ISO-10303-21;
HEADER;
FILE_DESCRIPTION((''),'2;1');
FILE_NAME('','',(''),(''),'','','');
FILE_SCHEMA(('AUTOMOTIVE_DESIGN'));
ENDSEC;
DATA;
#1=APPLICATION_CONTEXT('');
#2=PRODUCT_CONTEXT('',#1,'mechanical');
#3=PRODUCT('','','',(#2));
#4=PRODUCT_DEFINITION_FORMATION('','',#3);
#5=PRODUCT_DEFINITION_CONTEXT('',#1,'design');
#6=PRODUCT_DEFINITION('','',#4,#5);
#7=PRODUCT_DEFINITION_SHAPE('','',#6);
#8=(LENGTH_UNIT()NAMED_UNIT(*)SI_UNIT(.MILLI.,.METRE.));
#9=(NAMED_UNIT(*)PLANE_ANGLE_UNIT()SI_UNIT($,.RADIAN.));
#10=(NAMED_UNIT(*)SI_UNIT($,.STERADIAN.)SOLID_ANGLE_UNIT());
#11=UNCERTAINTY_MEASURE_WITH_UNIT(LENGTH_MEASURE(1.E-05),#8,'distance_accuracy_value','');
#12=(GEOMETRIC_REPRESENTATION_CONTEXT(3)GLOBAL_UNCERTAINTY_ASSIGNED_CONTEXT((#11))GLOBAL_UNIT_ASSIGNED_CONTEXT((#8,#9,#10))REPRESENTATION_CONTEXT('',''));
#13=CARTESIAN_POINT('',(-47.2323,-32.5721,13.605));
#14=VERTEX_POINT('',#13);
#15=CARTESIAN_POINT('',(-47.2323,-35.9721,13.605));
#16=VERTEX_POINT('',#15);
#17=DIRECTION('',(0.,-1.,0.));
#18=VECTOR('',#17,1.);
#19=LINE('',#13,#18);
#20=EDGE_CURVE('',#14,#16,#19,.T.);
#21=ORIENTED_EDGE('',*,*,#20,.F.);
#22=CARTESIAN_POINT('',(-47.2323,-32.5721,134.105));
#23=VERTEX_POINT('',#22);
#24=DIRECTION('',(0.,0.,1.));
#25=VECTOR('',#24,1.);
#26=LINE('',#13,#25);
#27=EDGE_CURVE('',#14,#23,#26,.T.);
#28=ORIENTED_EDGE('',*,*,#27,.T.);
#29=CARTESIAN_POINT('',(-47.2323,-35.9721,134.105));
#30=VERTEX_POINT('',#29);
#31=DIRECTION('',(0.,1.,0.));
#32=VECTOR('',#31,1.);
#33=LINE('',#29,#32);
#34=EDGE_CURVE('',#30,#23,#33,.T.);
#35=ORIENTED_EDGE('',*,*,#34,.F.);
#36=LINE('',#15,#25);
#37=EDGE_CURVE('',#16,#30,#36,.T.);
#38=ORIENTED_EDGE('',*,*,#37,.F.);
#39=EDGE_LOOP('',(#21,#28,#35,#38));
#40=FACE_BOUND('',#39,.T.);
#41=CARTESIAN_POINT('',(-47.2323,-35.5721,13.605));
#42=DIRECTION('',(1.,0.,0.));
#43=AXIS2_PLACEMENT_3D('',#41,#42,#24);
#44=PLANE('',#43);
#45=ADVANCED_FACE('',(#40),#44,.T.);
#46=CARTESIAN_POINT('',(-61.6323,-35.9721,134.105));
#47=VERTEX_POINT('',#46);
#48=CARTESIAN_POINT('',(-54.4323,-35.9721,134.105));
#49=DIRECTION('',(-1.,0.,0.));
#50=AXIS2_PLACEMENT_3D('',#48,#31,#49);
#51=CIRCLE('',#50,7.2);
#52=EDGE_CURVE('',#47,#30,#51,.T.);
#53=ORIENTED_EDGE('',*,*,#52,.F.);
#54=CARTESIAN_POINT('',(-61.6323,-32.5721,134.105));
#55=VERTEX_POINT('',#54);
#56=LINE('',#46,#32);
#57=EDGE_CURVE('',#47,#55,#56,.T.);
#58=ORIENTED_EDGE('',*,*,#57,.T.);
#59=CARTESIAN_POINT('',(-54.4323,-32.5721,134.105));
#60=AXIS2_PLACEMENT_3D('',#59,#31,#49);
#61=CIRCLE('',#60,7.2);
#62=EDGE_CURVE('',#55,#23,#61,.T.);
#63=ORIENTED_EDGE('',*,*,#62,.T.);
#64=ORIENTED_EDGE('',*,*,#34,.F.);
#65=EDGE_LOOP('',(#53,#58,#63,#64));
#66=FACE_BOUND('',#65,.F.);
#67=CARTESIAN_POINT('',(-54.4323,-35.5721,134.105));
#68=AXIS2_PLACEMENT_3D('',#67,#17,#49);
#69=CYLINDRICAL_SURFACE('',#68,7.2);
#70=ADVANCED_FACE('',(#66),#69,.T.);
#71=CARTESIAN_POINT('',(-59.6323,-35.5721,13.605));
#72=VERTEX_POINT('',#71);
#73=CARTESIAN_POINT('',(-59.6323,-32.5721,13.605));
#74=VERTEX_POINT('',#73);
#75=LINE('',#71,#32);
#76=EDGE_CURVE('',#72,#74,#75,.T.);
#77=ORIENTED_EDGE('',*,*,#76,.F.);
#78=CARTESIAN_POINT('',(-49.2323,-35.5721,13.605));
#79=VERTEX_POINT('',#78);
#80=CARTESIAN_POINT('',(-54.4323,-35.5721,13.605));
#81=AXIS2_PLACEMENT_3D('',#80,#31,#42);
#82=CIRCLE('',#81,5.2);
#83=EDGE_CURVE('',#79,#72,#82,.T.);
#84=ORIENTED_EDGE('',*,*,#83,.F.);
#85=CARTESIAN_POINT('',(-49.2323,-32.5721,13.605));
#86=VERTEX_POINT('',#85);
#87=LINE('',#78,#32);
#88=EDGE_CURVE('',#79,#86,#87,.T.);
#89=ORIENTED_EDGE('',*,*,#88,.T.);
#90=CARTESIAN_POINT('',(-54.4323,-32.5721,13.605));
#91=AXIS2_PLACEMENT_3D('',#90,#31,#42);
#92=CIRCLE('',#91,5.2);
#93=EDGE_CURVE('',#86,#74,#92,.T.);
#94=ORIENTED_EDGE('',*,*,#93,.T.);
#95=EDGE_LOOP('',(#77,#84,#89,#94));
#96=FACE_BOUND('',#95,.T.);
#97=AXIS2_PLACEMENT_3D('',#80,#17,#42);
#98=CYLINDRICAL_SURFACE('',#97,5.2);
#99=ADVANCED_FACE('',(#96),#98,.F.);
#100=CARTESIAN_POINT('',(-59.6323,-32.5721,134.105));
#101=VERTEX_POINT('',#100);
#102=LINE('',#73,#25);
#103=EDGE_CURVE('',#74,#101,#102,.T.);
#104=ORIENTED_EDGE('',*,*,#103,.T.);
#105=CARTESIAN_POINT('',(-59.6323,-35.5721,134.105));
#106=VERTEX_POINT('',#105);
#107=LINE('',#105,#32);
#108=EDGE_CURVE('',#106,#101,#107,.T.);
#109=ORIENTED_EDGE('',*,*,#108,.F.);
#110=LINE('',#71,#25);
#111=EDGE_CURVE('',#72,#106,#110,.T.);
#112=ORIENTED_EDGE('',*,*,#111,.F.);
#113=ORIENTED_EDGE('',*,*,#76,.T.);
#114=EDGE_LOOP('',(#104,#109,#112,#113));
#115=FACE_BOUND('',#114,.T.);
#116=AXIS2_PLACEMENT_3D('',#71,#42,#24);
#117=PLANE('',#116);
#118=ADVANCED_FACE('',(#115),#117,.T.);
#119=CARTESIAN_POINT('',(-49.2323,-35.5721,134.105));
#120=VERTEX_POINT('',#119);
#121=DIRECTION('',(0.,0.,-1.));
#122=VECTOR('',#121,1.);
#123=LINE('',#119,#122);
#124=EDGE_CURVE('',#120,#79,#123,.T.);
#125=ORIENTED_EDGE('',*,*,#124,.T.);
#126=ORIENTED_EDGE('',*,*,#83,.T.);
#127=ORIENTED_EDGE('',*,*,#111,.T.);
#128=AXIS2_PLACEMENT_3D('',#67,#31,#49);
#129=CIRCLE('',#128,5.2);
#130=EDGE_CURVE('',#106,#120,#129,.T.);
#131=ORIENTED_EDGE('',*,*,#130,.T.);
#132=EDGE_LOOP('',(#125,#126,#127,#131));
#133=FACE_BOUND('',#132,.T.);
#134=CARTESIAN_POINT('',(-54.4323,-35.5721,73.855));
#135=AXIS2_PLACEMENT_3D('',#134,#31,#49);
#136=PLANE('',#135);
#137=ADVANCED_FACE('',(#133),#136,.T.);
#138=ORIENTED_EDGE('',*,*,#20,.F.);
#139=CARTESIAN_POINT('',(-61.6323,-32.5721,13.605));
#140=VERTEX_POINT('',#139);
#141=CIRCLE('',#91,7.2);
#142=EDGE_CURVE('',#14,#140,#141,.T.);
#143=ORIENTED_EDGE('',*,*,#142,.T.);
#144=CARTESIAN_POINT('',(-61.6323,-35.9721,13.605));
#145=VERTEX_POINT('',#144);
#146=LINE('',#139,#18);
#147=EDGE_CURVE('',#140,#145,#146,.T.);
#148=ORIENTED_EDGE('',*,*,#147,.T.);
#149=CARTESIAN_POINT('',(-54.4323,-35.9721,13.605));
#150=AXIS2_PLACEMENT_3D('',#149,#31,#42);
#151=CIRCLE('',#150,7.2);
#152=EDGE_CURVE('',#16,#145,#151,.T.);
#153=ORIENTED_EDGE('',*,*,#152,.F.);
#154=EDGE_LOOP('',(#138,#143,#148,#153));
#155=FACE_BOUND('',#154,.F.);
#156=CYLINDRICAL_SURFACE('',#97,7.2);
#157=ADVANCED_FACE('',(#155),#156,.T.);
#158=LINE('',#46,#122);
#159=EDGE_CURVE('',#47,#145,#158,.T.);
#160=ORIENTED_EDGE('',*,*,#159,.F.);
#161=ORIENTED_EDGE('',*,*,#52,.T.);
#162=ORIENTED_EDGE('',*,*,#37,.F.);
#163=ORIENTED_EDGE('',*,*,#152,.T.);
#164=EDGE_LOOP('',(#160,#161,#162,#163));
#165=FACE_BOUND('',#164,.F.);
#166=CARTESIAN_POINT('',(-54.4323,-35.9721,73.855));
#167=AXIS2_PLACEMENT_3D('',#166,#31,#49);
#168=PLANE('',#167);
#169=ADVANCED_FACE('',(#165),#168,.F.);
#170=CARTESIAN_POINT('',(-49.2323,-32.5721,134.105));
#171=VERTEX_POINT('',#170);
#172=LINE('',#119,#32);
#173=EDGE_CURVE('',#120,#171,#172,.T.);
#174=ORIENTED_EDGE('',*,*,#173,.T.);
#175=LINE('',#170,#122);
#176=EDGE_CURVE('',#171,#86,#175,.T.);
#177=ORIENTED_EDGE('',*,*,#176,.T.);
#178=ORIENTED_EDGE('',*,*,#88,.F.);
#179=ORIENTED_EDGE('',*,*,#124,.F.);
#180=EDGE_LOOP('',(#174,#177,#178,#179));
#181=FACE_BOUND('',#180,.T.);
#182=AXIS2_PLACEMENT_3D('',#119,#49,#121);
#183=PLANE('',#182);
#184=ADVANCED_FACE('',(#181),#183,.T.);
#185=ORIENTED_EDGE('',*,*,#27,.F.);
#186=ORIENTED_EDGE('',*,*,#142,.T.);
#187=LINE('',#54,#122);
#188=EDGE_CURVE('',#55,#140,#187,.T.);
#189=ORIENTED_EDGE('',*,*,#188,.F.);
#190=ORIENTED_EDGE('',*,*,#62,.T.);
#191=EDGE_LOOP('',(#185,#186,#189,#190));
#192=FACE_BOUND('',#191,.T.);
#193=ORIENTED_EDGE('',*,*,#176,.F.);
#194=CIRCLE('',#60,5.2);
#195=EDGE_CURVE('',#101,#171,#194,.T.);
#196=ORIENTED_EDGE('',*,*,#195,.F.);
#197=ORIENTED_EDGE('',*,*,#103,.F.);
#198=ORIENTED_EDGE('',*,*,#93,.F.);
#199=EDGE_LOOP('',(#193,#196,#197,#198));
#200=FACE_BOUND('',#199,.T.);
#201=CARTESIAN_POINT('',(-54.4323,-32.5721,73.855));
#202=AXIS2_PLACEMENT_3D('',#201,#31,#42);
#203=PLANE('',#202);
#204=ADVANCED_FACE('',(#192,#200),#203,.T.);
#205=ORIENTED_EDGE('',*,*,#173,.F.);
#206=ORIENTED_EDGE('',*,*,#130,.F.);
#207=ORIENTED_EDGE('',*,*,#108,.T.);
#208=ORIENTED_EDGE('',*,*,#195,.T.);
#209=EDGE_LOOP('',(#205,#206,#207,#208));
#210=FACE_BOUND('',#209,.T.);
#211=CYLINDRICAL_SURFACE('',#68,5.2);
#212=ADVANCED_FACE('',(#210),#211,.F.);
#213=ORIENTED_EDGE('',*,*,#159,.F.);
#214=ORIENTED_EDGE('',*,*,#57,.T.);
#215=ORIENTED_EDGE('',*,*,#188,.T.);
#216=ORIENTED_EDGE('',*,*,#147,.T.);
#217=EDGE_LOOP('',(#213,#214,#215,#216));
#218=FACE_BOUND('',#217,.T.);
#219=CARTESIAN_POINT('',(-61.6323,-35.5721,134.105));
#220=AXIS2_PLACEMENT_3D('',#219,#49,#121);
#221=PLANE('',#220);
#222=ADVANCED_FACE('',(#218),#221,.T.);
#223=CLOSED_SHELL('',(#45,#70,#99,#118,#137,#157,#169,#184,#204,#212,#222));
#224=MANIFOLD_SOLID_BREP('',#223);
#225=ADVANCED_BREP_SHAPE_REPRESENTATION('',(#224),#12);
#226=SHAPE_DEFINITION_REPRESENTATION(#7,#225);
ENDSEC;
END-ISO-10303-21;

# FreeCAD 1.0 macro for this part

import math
import FreeCAD as App
import Part
import Sketcher

V = App.Vector
Q = App.Units.Quantity

doc = App.newDocument("Part")
body = doc.addObject("PartDesign::Body", "Body")

# Sketch on XZ plane
sketch1 = body.newObject("Sketcher::SketchObject", "Sketch")
sketch1.AttachmentSupport = (doc.getObject("XZ_Plane"), [""])
sketch1.MapMode = "FlatFace"
sketch1.AttachmentOffset = App.Placement(V(0, 0, 35.9721), App.Rotation())
sketch1.addGeometry([
    Part.LineSegment(V(-61.6323, 13.605, 0), V(-61.6323, 134.105, 0)),
    Part.ArcOfCircle(Part.Circle(V(-54.4323, 134.105, 0), V(0, 0, 1), 7.2), math.radians(0), math.radians(180)),
    Part.LineSegment(V(-47.2323, 134.105, 0), V(-47.2323, 13.605, 0)),
    Part.ArcOfCircle(Part.Circle(V(-54.4323, 13.605, 0), V(0, 0, 1), 7.2), math.radians(180), math.radians(360)),
], False)
sketch1.addConstraint([
    Sketcher.Constraint("Tangent", 0, 2, 1, 2),
    Sketcher.Constraint("Tangent", 1, 1, 2, 1),
    Sketcher.Constraint("Tangent", 2, 2, 3, 2),
    Sketcher.Constraint("Tangent", 3, 1, 0, 1),
    Sketcher.Constraint("Vertical", 0),
    Sketcher.Constraint("Vertical", 2),
    Sketcher.Constraint("Radius", 1, Q("7.2 mm")),
    Sketcher.Constraint("DistanceY", 0, 1, 0, 2, Q("120.5 mm")),
    Sketcher.Constraint("DistanceY", -1, 1, 1, 3, Q("134.105 mm")),
    Sketcher.Constraint("DistanceX", 1, 3, -1, 1, Q("54.4323 mm")),
])
pad1 = body.newObject("PartDesign::Pad", "Pad")
pad1.Profile = sketch1
pad1.Length = 0.4
pad1.Reversed = True

# Sketch on XZ plane
sketch2 = body.newObject("Sketcher::SketchObject", "Sketch001")
sketch2.AttachmentSupport = (doc.getObject("XZ_Plane"), [""])
sketch2.MapMode = "FlatFace"
sketch2.AttachmentOffset = App.Placement(V(0, 0, 35.5721), App.Rotation())
sketch2.addGeometry([
    Part.LineSegment(V(-61.6323, 13.605, 0), V(-61.6323, 134.105, 0)),  # 0
    Part.ArcOfCircle(Part.Circle(V(-54.4323, 134.105, 0), V(0, 0, 1), 7.2), math.radians(0), math.radians(180)),  # 1
    Part.LineSegment(V(-47.2323, 134.105, 0), V(-47.2323, 13.605, 0)),  # 2
    Part.ArcOfCircle(Part.Circle(V(-54.4323, 13.605, 0), V(0, 0, 1), 7.2), math.radians(180), math.radians(360)),  # 3
    Part.LineSegment(V(-49.2323, 13.605, 0), V(-49.2323, 134.105, 0)),  # 4
    Part.ArcOfCircle(Part.Circle(V(-54.4323, 134.105, 0), V(0, 0, 1), 5.2), math.radians(0), math.radians(180)),  # 5
    Part.LineSegment(V(-59.6323, 134.105, 0), V(-59.6323, 13.605, 0)),  # 6
    Part.ArcOfCircle(Part.Circle(V(-54.4323, 13.605, 0), V(0, 0, 1), 5.2), math.radians(180), math.radians(360)),  # 7
], False)
sketch2.addConstraint([
    Sketcher.Constraint("Tangent", 0, 2, 1, 2),
    Sketcher.Constraint("Tangent", 1, 1, 2, 1),
    Sketcher.Constraint("Tangent", 2, 2, 3, 2),
    Sketcher.Constraint("Tangent", 3, 1, 0, 1),
    Sketcher.Constraint("Tangent", 4, 2, 5, 1),
    Sketcher.Constraint("Tangent", 5, 2, 6, 1),
    Sketcher.Constraint("Tangent", 6, 2, 7, 1),
    Sketcher.Constraint("Tangent", 7, 2, 4, 1),
    Sketcher.Constraint("Vertical", 0),
    Sketcher.Constraint("Vertical", 2),
    Sketcher.Constraint("Vertical", 4),
    Sketcher.Constraint("Vertical", 6),
    Sketcher.Constraint("Coincident", 5, 3, 1, 3),
    Sketcher.Constraint("Horizontal", 7, 3, 2, 2),
    Sketcher.Constraint("Radius", 1, Q("7.2 mm")),
    Sketcher.Constraint("Radius", 5, Q("5.2 mm")),
    Sketcher.Constraint("DistanceY", 0, 1, 0, 2, Q("120.5 mm")),
    Sketcher.Constraint("DistanceY", -1, 1, 1, 3, Q("134.105 mm")),
    Sketcher.Constraint("DistanceX", 1, 3, -1, 1, Q("54.4323 mm")),
])
pad2 = body.newObject("PartDesign::Pad", "Pad001")
pad2.Profile = sketch2
pad2.Length = 3
pad2.Reversed = True

doc.recompute()
